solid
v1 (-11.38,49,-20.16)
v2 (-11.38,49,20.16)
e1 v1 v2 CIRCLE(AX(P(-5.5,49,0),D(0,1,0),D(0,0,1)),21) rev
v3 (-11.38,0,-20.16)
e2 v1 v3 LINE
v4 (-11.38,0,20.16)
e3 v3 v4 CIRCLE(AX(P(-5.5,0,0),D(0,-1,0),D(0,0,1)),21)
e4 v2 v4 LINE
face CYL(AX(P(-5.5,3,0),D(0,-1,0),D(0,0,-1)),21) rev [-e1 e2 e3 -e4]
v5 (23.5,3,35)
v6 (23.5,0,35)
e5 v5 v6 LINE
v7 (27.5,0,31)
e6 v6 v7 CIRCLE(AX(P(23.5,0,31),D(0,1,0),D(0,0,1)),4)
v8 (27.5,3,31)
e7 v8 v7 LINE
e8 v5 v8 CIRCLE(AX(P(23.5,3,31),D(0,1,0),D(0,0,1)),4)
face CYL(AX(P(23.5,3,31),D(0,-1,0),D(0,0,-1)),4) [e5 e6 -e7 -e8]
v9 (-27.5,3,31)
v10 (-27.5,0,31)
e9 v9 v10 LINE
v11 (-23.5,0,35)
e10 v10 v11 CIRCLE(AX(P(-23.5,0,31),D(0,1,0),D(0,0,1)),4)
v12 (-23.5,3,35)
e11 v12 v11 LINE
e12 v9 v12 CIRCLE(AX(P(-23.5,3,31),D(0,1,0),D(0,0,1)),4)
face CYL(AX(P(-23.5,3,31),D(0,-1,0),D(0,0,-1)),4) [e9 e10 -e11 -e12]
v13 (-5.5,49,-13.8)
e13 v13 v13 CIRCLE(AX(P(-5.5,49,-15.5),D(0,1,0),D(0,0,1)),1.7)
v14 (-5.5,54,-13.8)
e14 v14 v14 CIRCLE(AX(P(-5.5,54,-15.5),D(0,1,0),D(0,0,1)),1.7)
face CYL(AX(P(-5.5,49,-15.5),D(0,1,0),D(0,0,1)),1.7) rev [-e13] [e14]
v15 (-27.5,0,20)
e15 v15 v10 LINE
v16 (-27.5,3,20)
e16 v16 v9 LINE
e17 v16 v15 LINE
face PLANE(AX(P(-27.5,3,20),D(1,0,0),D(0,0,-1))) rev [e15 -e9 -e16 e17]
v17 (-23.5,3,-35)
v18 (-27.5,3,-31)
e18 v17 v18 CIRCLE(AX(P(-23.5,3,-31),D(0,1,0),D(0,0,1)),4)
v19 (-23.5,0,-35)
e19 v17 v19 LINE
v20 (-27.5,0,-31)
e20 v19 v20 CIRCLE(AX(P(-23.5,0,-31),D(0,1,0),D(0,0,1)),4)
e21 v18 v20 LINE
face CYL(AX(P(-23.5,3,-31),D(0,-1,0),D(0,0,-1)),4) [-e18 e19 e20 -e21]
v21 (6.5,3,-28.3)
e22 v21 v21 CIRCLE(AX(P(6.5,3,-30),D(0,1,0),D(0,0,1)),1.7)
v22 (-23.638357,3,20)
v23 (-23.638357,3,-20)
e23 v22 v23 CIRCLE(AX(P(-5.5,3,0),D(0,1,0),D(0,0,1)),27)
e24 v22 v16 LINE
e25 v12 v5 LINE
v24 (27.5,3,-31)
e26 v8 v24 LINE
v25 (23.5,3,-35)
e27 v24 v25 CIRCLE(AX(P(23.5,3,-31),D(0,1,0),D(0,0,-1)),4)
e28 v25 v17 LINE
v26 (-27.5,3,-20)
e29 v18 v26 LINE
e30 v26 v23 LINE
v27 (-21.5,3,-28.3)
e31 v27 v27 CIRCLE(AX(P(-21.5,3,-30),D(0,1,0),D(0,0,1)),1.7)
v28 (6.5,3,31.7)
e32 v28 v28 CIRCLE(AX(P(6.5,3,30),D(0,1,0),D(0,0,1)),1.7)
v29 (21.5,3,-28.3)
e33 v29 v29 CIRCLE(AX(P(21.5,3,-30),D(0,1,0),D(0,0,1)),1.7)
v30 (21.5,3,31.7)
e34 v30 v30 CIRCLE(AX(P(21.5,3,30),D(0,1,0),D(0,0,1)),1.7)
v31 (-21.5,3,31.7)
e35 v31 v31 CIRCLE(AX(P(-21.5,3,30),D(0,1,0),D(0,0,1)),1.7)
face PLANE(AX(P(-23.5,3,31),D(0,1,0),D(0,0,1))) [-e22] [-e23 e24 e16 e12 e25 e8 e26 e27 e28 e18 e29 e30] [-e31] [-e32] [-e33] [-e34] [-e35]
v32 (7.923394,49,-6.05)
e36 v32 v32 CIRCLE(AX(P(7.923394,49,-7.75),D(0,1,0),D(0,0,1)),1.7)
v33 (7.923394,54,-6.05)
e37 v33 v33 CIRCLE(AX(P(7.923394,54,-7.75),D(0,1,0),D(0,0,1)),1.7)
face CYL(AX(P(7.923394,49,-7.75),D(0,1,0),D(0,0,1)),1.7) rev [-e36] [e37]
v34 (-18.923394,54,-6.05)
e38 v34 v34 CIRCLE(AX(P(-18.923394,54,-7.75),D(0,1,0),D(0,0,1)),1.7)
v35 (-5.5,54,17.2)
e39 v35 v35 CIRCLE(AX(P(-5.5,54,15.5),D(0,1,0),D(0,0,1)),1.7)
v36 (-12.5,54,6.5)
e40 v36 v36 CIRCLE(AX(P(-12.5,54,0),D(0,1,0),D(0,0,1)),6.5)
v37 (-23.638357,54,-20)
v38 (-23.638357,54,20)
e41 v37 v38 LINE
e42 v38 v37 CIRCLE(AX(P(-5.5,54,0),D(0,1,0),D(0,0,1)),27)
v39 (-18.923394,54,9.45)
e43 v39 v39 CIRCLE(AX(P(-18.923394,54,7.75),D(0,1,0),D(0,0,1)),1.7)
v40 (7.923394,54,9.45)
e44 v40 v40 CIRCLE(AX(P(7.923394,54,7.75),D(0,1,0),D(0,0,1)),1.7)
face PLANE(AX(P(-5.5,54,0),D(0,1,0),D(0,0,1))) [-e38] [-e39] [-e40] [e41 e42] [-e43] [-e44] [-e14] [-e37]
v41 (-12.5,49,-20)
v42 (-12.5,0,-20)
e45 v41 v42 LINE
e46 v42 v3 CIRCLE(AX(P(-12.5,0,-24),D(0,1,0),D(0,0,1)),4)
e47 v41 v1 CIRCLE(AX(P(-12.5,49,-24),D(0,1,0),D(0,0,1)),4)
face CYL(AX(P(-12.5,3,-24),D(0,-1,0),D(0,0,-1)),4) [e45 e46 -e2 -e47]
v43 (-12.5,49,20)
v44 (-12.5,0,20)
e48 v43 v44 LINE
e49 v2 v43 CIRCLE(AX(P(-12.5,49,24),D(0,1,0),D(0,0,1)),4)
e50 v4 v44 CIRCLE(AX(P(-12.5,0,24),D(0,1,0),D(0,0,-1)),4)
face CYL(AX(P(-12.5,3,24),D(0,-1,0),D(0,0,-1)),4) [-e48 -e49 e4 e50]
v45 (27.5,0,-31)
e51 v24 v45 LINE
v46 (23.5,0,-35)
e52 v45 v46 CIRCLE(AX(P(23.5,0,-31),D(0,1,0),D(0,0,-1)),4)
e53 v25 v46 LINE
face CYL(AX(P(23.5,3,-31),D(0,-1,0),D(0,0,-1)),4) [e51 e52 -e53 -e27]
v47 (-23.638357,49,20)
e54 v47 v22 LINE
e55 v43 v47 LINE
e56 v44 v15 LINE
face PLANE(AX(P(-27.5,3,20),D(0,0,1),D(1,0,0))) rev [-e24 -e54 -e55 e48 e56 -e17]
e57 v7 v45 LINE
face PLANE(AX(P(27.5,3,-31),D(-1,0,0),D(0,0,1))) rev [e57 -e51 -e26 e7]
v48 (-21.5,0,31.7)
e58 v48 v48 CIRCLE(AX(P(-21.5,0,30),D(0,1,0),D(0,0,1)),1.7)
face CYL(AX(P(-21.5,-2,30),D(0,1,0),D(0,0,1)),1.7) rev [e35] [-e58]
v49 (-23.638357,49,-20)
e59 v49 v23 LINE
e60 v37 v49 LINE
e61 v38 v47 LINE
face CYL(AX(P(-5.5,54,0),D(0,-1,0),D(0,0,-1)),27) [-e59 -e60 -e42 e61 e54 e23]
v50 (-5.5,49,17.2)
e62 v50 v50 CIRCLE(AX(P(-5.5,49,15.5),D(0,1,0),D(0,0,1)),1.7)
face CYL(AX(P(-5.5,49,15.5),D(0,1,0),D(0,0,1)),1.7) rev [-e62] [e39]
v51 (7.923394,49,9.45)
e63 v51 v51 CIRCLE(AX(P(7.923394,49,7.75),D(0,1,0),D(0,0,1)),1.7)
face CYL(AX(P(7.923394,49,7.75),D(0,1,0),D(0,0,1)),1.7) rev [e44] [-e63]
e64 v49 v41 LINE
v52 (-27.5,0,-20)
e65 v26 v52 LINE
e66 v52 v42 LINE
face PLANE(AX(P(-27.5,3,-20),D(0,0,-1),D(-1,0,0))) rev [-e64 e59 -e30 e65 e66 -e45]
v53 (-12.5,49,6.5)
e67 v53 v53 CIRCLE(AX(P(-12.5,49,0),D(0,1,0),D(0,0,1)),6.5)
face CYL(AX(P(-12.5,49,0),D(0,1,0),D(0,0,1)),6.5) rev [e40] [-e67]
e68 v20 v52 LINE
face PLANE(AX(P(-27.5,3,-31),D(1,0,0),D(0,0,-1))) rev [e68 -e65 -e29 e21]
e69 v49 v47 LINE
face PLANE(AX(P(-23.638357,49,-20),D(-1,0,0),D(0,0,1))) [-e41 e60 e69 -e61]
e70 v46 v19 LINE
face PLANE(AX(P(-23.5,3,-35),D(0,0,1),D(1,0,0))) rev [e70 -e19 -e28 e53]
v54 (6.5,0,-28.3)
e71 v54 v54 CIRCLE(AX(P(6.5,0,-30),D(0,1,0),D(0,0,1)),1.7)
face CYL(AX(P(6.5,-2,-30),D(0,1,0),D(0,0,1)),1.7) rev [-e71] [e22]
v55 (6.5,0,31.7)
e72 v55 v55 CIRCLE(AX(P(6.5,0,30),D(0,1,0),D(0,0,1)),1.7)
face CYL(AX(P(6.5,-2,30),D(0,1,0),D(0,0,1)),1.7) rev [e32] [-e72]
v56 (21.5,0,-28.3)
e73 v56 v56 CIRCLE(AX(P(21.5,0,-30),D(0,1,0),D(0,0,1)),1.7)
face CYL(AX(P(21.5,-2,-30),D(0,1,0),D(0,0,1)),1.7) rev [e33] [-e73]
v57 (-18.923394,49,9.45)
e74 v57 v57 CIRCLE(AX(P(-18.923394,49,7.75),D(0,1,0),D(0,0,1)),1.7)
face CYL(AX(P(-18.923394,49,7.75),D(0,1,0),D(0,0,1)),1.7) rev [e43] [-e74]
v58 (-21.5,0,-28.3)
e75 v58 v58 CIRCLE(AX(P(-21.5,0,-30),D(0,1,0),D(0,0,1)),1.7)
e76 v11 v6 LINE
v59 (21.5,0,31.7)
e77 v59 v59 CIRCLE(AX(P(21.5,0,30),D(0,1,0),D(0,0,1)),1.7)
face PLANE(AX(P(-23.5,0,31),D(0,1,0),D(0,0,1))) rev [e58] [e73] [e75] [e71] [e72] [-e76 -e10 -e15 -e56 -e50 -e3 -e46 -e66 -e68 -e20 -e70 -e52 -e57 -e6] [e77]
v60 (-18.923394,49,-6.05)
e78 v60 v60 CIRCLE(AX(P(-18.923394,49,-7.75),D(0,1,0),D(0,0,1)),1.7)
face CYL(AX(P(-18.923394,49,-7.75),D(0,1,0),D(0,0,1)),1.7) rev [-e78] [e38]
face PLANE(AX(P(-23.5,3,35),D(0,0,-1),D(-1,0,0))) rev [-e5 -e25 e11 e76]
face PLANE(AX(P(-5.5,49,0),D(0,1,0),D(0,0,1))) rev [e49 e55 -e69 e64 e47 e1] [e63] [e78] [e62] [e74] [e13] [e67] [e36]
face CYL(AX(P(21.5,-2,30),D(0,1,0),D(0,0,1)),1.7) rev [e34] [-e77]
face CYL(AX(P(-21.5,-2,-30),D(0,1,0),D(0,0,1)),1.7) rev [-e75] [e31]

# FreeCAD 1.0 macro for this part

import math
import FreeCAD as App
import Part
import Sketcher

doc = App.newDocument("Part")
body = doc.addObject("PartDesign::Body", "Body")

# Sketch on XZ plane
sketch1 = doc.addObject("Sketcher::SketchObject", "Sketch")
body.addObject(sketch1)
sketch1.AttachmentSupport = (doc.XZ_Plane, [""])
sketch1.MapMode = "FlatFace"
sketch1.addGeometry([
    Part.LineSegment(App.Vector(-27.5, -20, 0), App.Vector(-12.5, -20, 0)),  # 0
    Part.ArcOfCircle(Part.Circle(App.Vector(-12.5, -24, 0), App.Vector(0, 0, 1), 4), math.radians(73.74), math.radians(90)),  # 1
    Part.ArcOfCircle(Part.Circle(App.Vector(-5.5, 0, 0), App.Vector(0, 0, 1), 21), math.radians(-106), math.radians(106)),  # 2
    Part.ArcOfCircle(Part.Circle(App.Vector(-12.5, 24, 0), App.Vector(0, 0, 1), 4), math.radians(-90), math.radians(-73.74)),  # 3
    Part.LineSegment(App.Vector(-12.5, 20, 0), App.Vector(-27.5, 20, 0)),  # 4
    Part.LineSegment(App.Vector(-27.5, 20, 0), App.Vector(-27.5, 31, 0)),  # 5
    Part.ArcOfCircle(Part.Circle(App.Vector(-23.5, 31, 0), App.Vector(0, 0, 1), 4), math.radians(90), math.radians(180)),  # 6
    Part.LineSegment(App.Vector(-23.5, 35, 0), App.Vector(23.5, 35, 0)),  # 7
    Part.ArcOfCircle(Part.Circle(App.Vector(23.5, 31, 0), App.Vector(0, 0, 1), 4), math.radians(0), math.radians(90)),  # 8
    Part.LineSegment(App.Vector(27.5, 31, 0), App.Vector(27.5, -31, 0)),  # 9
    Part.ArcOfCircle(Part.Circle(App.Vector(23.5, -31, 0), App.Vector(0, 0, 1), 4), math.radians(-90), math.radians(0)),  # 10
    Part.LineSegment(App.Vector(23.5, -35, 0), App.Vector(-23.5, -35, 0)),  # 11
    Part.ArcOfCircle(Part.Circle(App.Vector(-23.5, -31, 0), App.Vector(0, 0, 1), 4), math.radians(180), math.radians(270)),  # 12
    Part.LineSegment(App.Vector(-27.5, -31, 0), App.Vector(-27.5, -20, 0)),  # 13
], False)
sketch1.addConstraint([
    Sketcher.Constraint("Tangent", 0, 2, 1, 2),
    Sketcher.Constraint("Tangent", 1, 1, 2, 1),
    Sketcher.Constraint("Tangent", 2, 2, 3, 2),
    Sketcher.Constraint("Tangent", 3, 1, 4, 1),
    Sketcher.Constraint("Coincident", 4, 2, 5, 1),
    Sketcher.Constraint("Tangent", 5, 2, 6, 2),
    Sketcher.Constraint("Tangent", 6, 1, 7, 1),
    Sketcher.Constraint("Tangent", 7, 2, 8, 2),
    Sketcher.Constraint("Tangent", 8, 1, 9, 1),
    Sketcher.Constraint("Tangent", 9, 2, 10, 2),
    Sketcher.Constraint("Tangent", 10, 1, 11, 1),
    Sketcher.Constraint("Tangent", 11, 2, 12, 2),
    Sketcher.Constraint("Tangent", 12, 1, 13, 1),
    Sketcher.Constraint("Coincident", 13, 2, 0, 1),
    Sketcher.Constraint("Horizontal", 0),
    Sketcher.Constraint("Horizontal", 4),
    Sketcher.Constraint("Vertical", 5),
    Sketcher.Constraint("Horizontal", 7),
    Sketcher.Constraint("Vertical", 9),
    Sketcher.Constraint("Horizontal", 11),
    Sketcher.Constraint("Vertical", 13),
    Sketcher.Constraint("Equal", 1, 3),
    Sketcher.Constraint("Equal", 3, 6),
    Sketcher.Constraint("Equal", 6, 8),
    Sketcher.Constraint("Equal", 8, 10),
    Sketcher.Constraint("Equal", 10, 12),
    Sketcher.Constraint("Symmetric", 6, 3, 10, 3, -1, 1),
    Sketcher.Constraint("Symmetric", 1, 3, 3, 3, -1),
    Sketcher.Constraint("Vertical", 6, 3, 12, 3),
    Sketcher.Constraint("Radius", 1, 4.0),
    Sketcher.Constraint("Radius", 2, 21.0),
    Sketcher.Constraint("DistanceX", 0, 1, 0, 2, 15.0),
    Sketcher.Constraint("DistanceX", 7, 1, 7, 2, 47.0),
    Sketcher.Constraint("DistanceY", 5, 1, 5, 2, 11.0),
    Sketcher.Constraint("DistanceY", 9, 2, 9, 1, 62.0),
])
pad1 = doc.addObject("PartDesign::Pad", "Pad")
body.addObject(pad1)
pad1.Profile = sketch1
pad1.Length = 3
pad1.Reversed = True

# Sketch on XZ plane
sketch2 = doc.addObject("Sketcher::SketchObject", "Sketch001")
body.addObject(sketch2)
sketch2.AttachmentSupport = (doc.XZ_Plane, [""])
sketch2.MapMode = "FlatFace"
sketch2.AttachmentOffset = App.Placement(App.Vector(0, 0, -3), App.Rotation())
sketch2.addGeometry([
    Part.LineSegment(App.Vector(-12.5, 20, 0), App.Vector(-23.6, 20, 0)),  # 0
    Part.ArcOfCircle(Part.Circle(App.Vector(-5.5, 0, 0), App.Vector(0, 0, 1), 27), math.radians(-132), math.radians(132)),  # 1
    Part.LineSegment(App.Vector(-23.6, -20, 0), App.Vector(-12.5, -20, 0)),  # 2
    Part.ArcOfCircle(Part.Circle(App.Vector(-12.5, -24, 0), App.Vector(0, 0, 1), 4), math.radians(73.74), math.radians(90)),  # 3
    Part.ArcOfCircle(Part.Circle(App.Vector(-5.5, 0, 0), App.Vector(0, 0, 1), 21), math.radians(-106), math.radians(106)),  # 4
    Part.ArcOfCircle(Part.Circle(App.Vector(-12.5, 24, 0), App.Vector(0, 0, 1), 4), math.radians(-90), math.radians(-73.74)),  # 5
], False)
sketch2.addConstraint([
    Sketcher.Constraint("Coincident", 0, 2, 1, 2),
    Sketcher.Constraint("Coincident", 1, 1, 2, 1),
    Sketcher.Constraint("Tangent", 2, 2, 3, 2),
    Sketcher.Constraint("Tangent", 3, 1, 4, 1),
    Sketcher.Constraint("Tangent", 4, 2, 5, 2),
    Sketcher.Constraint("Tangent", 5, 1, 0, 1),
    Sketcher.Constraint("Horizontal", 0),
    Sketcher.Constraint("Horizontal", 2),
    Sketcher.Constraint("Coincident", 4, 3, 1, 3),
    Sketcher.Constraint("Equal", 3, 5),
    Sketcher.Constraint("Symmetric", 3, 3, 5, 3, -1),
    Sketcher.Constraint("Radius", 1, 27.0),
    Sketcher.Constraint("Radius", 3, 4.0),
    Sketcher.Constraint("Radius", 4, 21.0),
    Sketcher.Constraint("DistanceY", 3, 3, -1, 1, 24.0),
    Sketcher.Constraint("DistanceX", 1, 3, -1, 1, 5.5),
])
pad2 = doc.addObject("PartDesign::Pad", "Pad001")
body.addObject(pad2)
pad2.Profile = sketch2
pad2.Length = 51
pad2.Reversed = True

# Sketch on XZ plane
sketch3 = doc.addObject("Sketcher::SketchObject", "Sketch002")
body.addObject(sketch3)
sketch3.AttachmentSupport = (doc.XZ_Plane, [""])
sketch3.MapMode = "FlatFace"
sketch3.AttachmentOffset = App.Placement(App.Vector(0, 0, -49), App.Rotation())
sketch3.addGeometry([
    Part.LineSegment(App.Vector(-24, -20, 0), App.Vector(-24, 20, 0)),
    Part.ArcOfCircle(Part.Circle(App.Vector(-6, 0, 0), App.Vector(0, 0, 1), 27), math.radians(-132), math.radians(132)),
], False)
sketch3.addConstraint([
    Sketcher.Constraint("Coincident", 0, 1, 1, 1),
    Sketcher.Constraint("Coincident", 1, 2, 0, 2),
    Sketcher.Constraint("Vertical", 0),
    Sketcher.Constraint("PointOnObject", 1, 3, -1),
    Sketcher.Constraint("Radius", 1, 27.0),
    Sketcher.Constraint("DistanceY", 0, 1, 0, 2, 40.0),
    Sketcher.Constraint("DistanceX", 1, 3, -1, 1, 5.5),
])
pad3 = doc.addObject("PartDesign::Pad", "Pad002")
body.addObject(pad3)
pad3.Profile = sketch3
pad3.Length = 5
pad3.Reversed = True

# Sketch on XZ plane
sketch4 = doc.addObject("Sketcher::SketchObject", "Sketch003")
body.addObject(sketch4)
sketch4.AttachmentSupport = (doc.XZ_Plane, [""])
sketch4.MapMode = "FlatFace"
sketch4.AttachmentOffset = App.Placement(App.Vector(0, 0, -3), App.Rotation())
sketch4.addGeometry([
    Part.Circle(App.Vector(-21.5, 30, 0), App.Vector(0, 0, 1), 1.7),  # 0
    Part.Circle(App.Vector(21.5, 30, 0), App.Vector(0, 0, 1), 1.7),  # 1
    Part.Circle(App.Vector(21.5, -30, 0), App.Vector(0, 0, 1), 1.7),  # 2
    Part.Circle(App.Vector(-21.5, -30, 0), App.Vector(0, 0, 1), 1.7),  # 3
    Part.Circle(App.Vector(6.5, 30, 0), App.Vector(0, 0, 1), 1.7),  # 4
    Part.Circle(App.Vector(6.5, -30, 0), App.Vector(0, 0, 1), 1.7),  # 5
], False)
sketch4.addConstraint([
    Sketcher.Constraint("Equal", 0, 1),
    Sketcher.Constraint("Equal", 1, 2),
    Sketcher.Constraint("Equal", 2, 3),
    Sketcher.Constraint("Equal", 3, 4),
    Sketcher.Constraint("Equal", 4, 5),
    Sketcher.Constraint("Symmetric", 0, 3, 2, 3, -1, 1),
    Sketcher.Constraint("Symmetric", 1, 3, 3, 3, -1, 1),
    Sketcher.Constraint("Symmetric", 0, 3, 1, 3, -2),
    Sketcher.Constraint("Symmetric", 4, 3, 5, 3, -1),
    Sketcher.Constraint("Horizontal", 1, 3, 4, 3),
    Sketcher.Constraint("Diameter", 0, 3.4),
    Sketcher.Constraint("DistanceY", -1, 1, 0, 3, 30.0),
    Sketcher.Constraint("DistanceX", 0, 3, 1, 3, 43.0),
    Sketcher.Constraint("DistanceX", 4, 3, 1, 3, 15.0),
])
pocket1 = doc.addObject("PartDesign::Pocket", "Pocket")
body.addObject(pocket1)
pocket1.Profile = sketch4
pocket1.Length = 5
pocket1.Reversed = True

# Sketch on XZ plane
sketch5 = doc.addObject("Sketcher::SketchObject", "Sketch004")
body.addObject(sketch5)
sketch5.AttachmentSupport = (doc.XZ_Plane, [""])
sketch5.MapMode = "FlatFace"
sketch5.AttachmentOffset = App.Placement(App.Vector(0, 0, -54), App.Rotation())
sketch5.addGeometry([
    Part.Circle(App.Vector(-12.5, 0, 0), App.Vector(0, 0, 1), 6.5),  # 0
    Part.Circle(App.Vector(-5.5, 15.5, 0), App.Vector(0, 0, 1), 1.7),  # 1
    Part.Circle(App.Vector(-18.9, 7.8, 0), App.Vector(0, 0, 1), 1.7),  # 2
    Part.Circle(App.Vector(-18.9, -7.8, 0), App.Vector(0, 0, 1), 1.7),  # 3
    Part.Circle(App.Vector(-5.5, -15.5, 0), App.Vector(0, 0, 1), 1.7),  # 4
    Part.Circle(App.Vector(7.9, -7.8, 0), App.Vector(0, 0, 1), 1.7),  # 5
    Part.Circle(App.Vector(7.9, 7.8, 0), App.Vector(0, 0, 1), 1.7),  # 6
], False)
sketch5.addConstraint([
    Sketcher.Constraint("Equal", 1, 2),
    Sketcher.Constraint("Equal", 2, 3),
    Sketcher.Constraint("Equal", 3, 4),
    Sketcher.Constraint("Equal", 4, 5),
    Sketcher.Constraint("Equal", 5, 6),
    Sketcher.Constraint("Symmetric", 2, 3, 3, 3, -1),
    Sketcher.Constraint("Symmetric", 1, 3, 4, 3, -1),
    Sketcher.Constraint("Symmetric", 5, 3, 6, 3, -1),
    Sketcher.Constraint("PointOnObject", 0, 3, -1),
    Sketcher.Constraint("Horizontal", 3, 3, 5, 3),
    Sketcher.Constraint("Diameter", 0, 13.0),
    Sketcher.Constraint("Diameter", 1, 3.4),
    Sketcher.Constraint("DistanceX", 0, 3, 1, 3, 7.0),
    Sketcher.Constraint("DistanceY", 4, 3, 1, 3, 31.0),
    Sketcher.Constraint("DistanceX", 0, 3, -1, 1, 12.5),
    Sketcher.Constraint("DistanceY", 3, 3, 2, 3, 15.5),
    Sketcher.Constraint("DistanceX", 2, 3, -1, 1, 18.923394),
    Sketcher.Constraint("DistanceX", -1, 1, 5, 3, 7.923394),
])
pocket2 = doc.addObject("PartDesign::Pocket", "Pocket001")
body.addObject(pocket2)
pocket2.Profile = sketch5
pocket2.Length = 5
pocket2.Reversed = True

doc.recompute()
